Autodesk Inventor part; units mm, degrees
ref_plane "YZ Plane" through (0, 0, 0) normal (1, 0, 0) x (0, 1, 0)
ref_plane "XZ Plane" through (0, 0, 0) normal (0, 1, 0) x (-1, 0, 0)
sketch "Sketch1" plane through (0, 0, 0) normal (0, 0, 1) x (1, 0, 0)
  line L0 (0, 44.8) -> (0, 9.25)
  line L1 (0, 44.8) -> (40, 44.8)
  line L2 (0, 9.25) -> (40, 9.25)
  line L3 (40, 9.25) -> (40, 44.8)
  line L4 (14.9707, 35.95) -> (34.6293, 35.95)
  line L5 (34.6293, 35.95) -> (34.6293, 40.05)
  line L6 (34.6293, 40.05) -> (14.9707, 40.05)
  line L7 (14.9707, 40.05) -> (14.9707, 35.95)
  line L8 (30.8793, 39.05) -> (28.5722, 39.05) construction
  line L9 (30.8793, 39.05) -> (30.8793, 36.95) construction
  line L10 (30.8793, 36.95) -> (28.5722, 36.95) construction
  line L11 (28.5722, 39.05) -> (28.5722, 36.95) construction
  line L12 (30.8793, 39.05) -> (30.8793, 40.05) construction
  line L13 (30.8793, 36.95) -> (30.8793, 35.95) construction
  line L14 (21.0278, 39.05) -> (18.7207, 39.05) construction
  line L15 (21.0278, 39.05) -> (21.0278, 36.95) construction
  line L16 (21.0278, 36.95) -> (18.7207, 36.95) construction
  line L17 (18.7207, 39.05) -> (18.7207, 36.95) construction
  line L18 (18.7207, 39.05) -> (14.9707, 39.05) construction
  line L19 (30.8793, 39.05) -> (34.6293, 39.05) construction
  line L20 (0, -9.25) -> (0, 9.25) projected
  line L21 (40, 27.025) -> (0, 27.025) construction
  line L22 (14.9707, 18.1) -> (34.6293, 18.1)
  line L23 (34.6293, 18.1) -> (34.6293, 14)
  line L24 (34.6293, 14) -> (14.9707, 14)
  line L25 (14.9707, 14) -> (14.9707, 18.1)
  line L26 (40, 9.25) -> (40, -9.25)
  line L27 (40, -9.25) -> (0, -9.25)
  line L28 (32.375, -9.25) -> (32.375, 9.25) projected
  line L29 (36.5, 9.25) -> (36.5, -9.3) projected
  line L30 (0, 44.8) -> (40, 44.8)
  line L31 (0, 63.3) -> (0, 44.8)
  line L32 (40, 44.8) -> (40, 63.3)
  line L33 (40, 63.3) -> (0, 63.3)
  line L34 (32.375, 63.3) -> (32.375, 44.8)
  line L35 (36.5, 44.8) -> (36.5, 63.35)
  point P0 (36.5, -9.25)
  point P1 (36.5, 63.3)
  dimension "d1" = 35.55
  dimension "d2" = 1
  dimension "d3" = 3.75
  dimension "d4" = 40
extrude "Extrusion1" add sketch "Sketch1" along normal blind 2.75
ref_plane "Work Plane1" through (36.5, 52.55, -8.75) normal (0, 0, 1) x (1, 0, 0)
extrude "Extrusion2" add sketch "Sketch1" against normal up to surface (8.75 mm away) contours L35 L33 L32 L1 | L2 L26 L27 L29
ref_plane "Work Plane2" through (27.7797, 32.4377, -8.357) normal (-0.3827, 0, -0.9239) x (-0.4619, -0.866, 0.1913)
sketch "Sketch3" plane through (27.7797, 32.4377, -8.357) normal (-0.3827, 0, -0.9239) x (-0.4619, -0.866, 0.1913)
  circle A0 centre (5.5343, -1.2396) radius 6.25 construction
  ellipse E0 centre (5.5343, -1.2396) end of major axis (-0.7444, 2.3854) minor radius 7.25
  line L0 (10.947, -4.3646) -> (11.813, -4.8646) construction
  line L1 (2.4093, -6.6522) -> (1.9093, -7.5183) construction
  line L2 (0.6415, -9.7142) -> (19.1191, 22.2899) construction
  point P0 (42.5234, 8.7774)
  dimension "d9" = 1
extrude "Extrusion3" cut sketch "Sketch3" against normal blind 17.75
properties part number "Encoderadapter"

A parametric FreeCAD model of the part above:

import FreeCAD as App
import Part
import Sketcher
from FreeCAD import Vector


def add_polygon(sketch, points):
    """Adds a closed chain of lines whose ends are joined by coincident constraints."""
    first, n = sketch.GeometryCount, len(points)
    for a, b in zip(points, points[1:] + points[:1]):
        sketch.addGeometry(Part.LineSegment(App.Vector(*a, 0), App.Vector(*b, 0)), False)
    for i in range(n):
        sketch.addConstraint(Sketcher.Constraint("Coincident", first + i, 2, first + (i + 1) % n, 1))

doc = App.newDocument("Part")
body = doc.addObject("PartDesign::Body", "Body")

# Sketch on XY plane
sketch1 = doc.addObject("Sketcher::SketchObject", "Sketch")
body.addObject(sketch1)
sketch1.AttachmentSupport = (doc.XY_Plane, [""])
sketch1.MapMode = "FlatFace"
add_polygon(sketch1, [(40, 63.3), (0, 63.3), (0, -9.2), (40, -9.2)])  # lines 0-3
add_polygon(sketch1, [(15, 14), (15, 18.1), (34.6, 18.1), (34.6, 14)])  # lines 4-7
add_polygon(sketch1, [(34.6, 36), (15, 36), (15, 40), (34.6, 40)])  # lines 8-11
sketch1.addConstraint([
    Sketcher.Constraint("Horizontal", 0),
    Sketcher.Constraint("Vertical", 1),
    Sketcher.Constraint("Horizontal", 2),
    Sketcher.Constraint("Vertical", 3),
    Sketcher.Constraint("Vertical", 4),
    Sketcher.Constraint("Horizontal", 5),
    Sketcher.Constraint("Vertical", 6),
    Sketcher.Constraint("Horizontal", 7),
    Sketcher.Constraint("Horizontal", 8),
    Sketcher.Constraint("Vertical", 9),
    Sketcher.Constraint("Horizontal", 10),
    Sketcher.Constraint("Vertical", 11),
    Sketcher.Constraint("PointOnObject", 0, 2, -2),
    Sketcher.Constraint("Vertical", 7, 2, 8, 2),
    Sketcher.Constraint("Vertical", 6, 2, 10, 2),
    Sketcher.Constraint("Equal", 6, 9),
    Sketcher.Constraint("DistanceX", 0, 2, 0, 1, 40.0),
    Sketcher.Constraint("DistanceY", 4, 1, 4, 2, 4.1),
    Sketcher.Constraint("DistanceY", -1, 1, 6, 2, 14.0),
    Sketcher.Constraint("DistanceY", 1, 2, 1, 1, 72.55),
    Sketcher.Constraint("DistanceY", -1, 1, 0, 2, 63.3),
    Sketcher.Constraint("DistanceY", -1, 1, 8, 2, 35.95),
    Sketcher.Constraint("DistanceX", 5, 1, 5, 2, 19.6586),
    Sketcher.Constraint("DistanceX", -1, 1, 4, 2, 14.9707),
])
pad1 = doc.addObject("PartDesign::Pad", "Pad")
body.addObject(pad1)
pad1.Profile = sketch1
pad1.Length = 2.75

# Sketch on XY plane
sketch2 = doc.addObject("Sketcher::SketchObject", "Sketch001")
body.addObject(sketch2)
sketch2.AttachmentSupport = (doc.XY_Plane, [""])
sketch2.MapMode = "FlatFace"
add_polygon(sketch2, [(36.5, 63.3), (36.5, 44.8), (40, 44.8), (40, 63.3)])  # lines 0-3
add_polygon(sketch2, [(40, 9.2), (36.5, 9.2), (36.5, -9.2), (40, -9.2)])  # lines 4-7
sketch2.addConstraint([
    Sketcher.Constraint("Vertical", 0),
    Sketcher.Constraint("Horizontal", 1),
    Sketcher.Constraint("Vertical", 2),
    Sketcher.Constraint("Horizontal", 3),
    Sketcher.Constraint("Horizontal", 4),
    Sketcher.Constraint("Vertical", 5),
    Sketcher.Constraint("Horizontal", 6),
    Sketcher.Constraint("Vertical", 7),
    Sketcher.Constraint("Vertical", 3, 2, 4, 2),
    Sketcher.Constraint("Vertical", 2, 2, 6, 2),
    Sketcher.Constraint("Equal", 2, 5),
    Sketcher.Constraint("DistanceX", -1, 1, 1, 2, 40.0),
    Sketcher.Constraint("DistanceY", 4, 2, 0, 2, 35.55),
    Sketcher.Constraint("DistanceX", 1, 1, 1, 2, 3.5),
    Sketcher.Constraint("DistanceY", 0, 2, 0, 1, 18.5),
    Sketcher.Constraint("DistanceY", -1, 1, 0, 2, 44.8),
])
pad2 = doc.addObject("PartDesign::Pad", "Pad001")
body.addObject(pad2)
pad2.Profile = sketch2
pad2.Length = 8.75
pad2.Reversed = True

# Sketch on an angled plane
sketch3 = doc.addObject("Sketcher::SketchObject", "Sketch002")
body.addObject(sketch3)
sketch3.Placement = App.Placement(Vector(27.7797, 32.4377, -8.357), App.Rotation(Vector(-0.461913409, -0.866041874, 0.191330799), Vector(-0.800118362, 0.499971471, 0.331419877), Vector(-0.382683432, 0, -0.923879533), "ZXY"))
sketch3.addGeometry(Part.Ellipse(Vector(-0.7444, 2.3854, 0), Vector(1.909307, -7.518288, 0), Vector(5.5343, -1.2396, 0)), False)
sketch3.addConstraint(Sketcher.Constraint("Block", 0))
pocket1 = doc.addObject("PartDesign::Pocket", "Pocket")
body.addObject(pocket1)
pocket1.Profile = sketch3
pocket1.Length = 17.75

doc.recompute()
